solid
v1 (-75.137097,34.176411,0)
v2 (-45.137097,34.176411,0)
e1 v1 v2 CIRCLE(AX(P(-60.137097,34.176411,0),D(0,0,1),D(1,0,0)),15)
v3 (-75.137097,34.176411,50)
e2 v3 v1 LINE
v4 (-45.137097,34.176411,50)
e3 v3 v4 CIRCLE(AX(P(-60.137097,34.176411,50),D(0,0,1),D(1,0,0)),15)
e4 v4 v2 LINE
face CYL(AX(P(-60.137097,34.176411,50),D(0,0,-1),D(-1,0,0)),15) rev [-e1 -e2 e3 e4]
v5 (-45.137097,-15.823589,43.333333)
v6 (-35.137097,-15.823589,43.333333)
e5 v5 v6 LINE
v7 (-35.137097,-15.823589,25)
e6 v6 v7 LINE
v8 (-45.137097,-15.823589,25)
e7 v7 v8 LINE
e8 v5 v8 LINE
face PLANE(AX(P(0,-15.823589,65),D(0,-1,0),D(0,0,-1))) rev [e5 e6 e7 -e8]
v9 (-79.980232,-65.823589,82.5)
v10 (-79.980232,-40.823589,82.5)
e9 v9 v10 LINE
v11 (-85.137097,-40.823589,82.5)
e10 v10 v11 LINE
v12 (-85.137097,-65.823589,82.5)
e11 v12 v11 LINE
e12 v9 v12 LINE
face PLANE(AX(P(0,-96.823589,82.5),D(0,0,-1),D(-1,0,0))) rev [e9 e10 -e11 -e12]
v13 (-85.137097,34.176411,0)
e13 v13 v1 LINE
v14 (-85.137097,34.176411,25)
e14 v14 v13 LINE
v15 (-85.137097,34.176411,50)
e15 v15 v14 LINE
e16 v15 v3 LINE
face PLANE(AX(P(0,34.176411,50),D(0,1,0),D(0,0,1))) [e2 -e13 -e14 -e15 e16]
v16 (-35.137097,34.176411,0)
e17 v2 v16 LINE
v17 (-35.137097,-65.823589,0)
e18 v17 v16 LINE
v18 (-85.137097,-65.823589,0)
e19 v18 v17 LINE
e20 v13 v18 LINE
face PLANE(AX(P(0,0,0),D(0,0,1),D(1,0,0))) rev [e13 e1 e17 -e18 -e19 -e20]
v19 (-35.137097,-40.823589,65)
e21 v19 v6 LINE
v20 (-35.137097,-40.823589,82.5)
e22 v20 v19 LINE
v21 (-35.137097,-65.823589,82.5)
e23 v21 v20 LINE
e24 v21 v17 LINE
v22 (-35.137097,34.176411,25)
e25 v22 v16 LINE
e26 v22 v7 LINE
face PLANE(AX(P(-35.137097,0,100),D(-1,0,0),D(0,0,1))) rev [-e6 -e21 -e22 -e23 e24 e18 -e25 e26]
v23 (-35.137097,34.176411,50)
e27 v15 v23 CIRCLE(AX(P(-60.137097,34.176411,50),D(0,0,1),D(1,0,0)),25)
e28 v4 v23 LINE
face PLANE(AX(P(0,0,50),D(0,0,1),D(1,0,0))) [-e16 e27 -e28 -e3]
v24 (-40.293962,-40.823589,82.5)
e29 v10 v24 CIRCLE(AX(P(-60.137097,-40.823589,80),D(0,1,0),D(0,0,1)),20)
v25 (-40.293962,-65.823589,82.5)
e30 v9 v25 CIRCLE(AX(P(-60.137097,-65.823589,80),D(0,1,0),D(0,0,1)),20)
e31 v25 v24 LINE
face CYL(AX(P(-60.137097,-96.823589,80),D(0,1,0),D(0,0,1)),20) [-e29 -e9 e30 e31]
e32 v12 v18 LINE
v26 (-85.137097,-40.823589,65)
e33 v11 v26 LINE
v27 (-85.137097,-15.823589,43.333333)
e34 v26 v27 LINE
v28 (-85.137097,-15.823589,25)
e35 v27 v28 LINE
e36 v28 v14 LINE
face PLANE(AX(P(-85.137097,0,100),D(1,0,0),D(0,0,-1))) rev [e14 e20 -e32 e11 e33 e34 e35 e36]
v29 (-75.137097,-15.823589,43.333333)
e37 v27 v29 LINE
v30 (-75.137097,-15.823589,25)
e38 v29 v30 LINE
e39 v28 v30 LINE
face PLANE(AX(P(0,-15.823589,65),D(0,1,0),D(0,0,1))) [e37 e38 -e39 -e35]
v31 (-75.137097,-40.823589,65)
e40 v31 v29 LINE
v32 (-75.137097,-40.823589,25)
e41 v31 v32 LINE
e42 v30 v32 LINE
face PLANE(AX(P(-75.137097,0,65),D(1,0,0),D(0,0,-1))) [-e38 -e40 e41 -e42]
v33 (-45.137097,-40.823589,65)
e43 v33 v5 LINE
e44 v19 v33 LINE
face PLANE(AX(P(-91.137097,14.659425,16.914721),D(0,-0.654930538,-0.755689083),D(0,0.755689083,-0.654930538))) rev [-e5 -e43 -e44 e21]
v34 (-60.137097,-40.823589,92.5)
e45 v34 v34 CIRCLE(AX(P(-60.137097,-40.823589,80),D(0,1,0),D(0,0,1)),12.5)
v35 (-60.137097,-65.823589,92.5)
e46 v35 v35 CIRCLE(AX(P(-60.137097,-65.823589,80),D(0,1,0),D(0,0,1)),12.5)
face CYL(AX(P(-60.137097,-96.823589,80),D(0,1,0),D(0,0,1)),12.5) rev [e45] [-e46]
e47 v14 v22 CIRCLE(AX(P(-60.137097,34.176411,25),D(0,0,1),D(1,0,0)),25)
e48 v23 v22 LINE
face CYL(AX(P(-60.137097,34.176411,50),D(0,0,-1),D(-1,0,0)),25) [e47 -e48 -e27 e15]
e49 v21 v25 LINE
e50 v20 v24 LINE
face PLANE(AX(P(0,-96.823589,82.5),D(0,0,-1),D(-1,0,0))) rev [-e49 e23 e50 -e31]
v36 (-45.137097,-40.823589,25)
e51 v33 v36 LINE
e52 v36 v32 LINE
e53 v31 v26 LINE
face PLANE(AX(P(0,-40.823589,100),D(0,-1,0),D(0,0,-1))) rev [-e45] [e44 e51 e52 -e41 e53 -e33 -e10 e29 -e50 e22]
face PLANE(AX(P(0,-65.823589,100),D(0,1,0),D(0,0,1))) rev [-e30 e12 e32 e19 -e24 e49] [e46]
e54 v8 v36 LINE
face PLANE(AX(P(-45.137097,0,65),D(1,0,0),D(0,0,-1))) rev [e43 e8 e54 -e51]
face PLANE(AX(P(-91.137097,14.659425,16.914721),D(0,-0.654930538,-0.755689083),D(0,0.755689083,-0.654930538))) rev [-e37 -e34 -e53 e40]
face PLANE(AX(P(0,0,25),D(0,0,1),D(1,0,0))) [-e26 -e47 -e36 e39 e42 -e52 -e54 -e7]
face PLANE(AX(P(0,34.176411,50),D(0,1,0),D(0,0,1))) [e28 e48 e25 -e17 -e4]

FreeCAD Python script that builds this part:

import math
import FreeCAD as App
import Part
import Sketcher


def add_polygon(sketch, points):
    """Adds a closed chain of lines whose ends are joined by coincident constraints."""
    first, n = sketch.GeometryCount, len(points)
    for a, b in zip(points, points[1:] + points[:1]):
        sketch.addGeometry(Part.LineSegment(App.Vector(*a, 0), App.Vector(*b, 0)), False)
    for i in range(n):
        sketch.addConstraint(Sketcher.Constraint("Coincident", first + i, 2, first + (i + 1) % n, 1))

doc = App.newDocument("Part")
body = doc.addObject("PartDesign::Body", "Body")

# Sketch on XY plane
sketch1 = body.newObject("Sketcher::SketchObject", "Sketch")
sketch1.AttachmentSupport = (doc.getObject("XY_Plane"), [""])
sketch1.MapMode = "FlatFace"
add_polygon(sketch1, [(-85, -41), (-85, -66), (-35, -66), (-35, -41)])  # lines 0-3
sketch1.addConstraint([
    Sketcher.Constraint("Vertical", 0),
    Sketcher.Constraint("Horizontal", 1),
    Sketcher.Constraint("Vertical", 2),
    Sketcher.Constraint("Horizontal", 3),
    Sketcher.Constraint("DistanceX", 1, 1, 1, 2, 50.0),
    Sketcher.Constraint("DistanceY", 0, 2, 0, 1, 25.0),
    Sketcher.Constraint("DistanceY", 0, 2, -1, 1, 65.823589),
    Sketcher.Constraint("DistanceX", 0, 2, -1, 1, 85.137097),
])
pad1 = body.newObject("PartDesign::Pad", "Pad")
pad1.Profile = sketch1
pad1.Length = 100

# Sketch on XY plane
sketch2 = body.newObject("Sketcher::SketchObject", "Sketch001")
sketch2.AttachmentSupport = (doc.getObject("XY_Plane"), [""])
sketch2.MapMode = "FlatFace"
add_polygon(sketch2, [(-85, -16), (-85, -41), (-75, -41), (-75, -16)])  # lines 0-3
add_polygon(sketch2, [(-45, -16), (-45, -41), (-35, -41), (-35, -16)])  # lines 4-7
sketch2.addConstraint([
    Sketcher.Constraint("Vertical", 0),
    Sketcher.Constraint("Horizontal", 1),
    Sketcher.Constraint("Vertical", 2),
    Sketcher.Constraint("Horizontal", 3),
    Sketcher.Constraint("Vertical", 4),
    Sketcher.Constraint("Horizontal", 5),
    Sketcher.Constraint("Vertical", 6),
    Sketcher.Constraint("Horizontal", 7),
    Sketcher.Constraint("Horizontal", 1, 2, 4, 2),
    Sketcher.Constraint("Horizontal", 3, 2, 6, 2),
    Sketcher.Constraint("Equal", 3, 5),
    Sketcher.Constraint("DistanceX", 1, 1, 1, 2, 10.0),
    Sketcher.Constraint("DistanceY", 0, 2, 0, 1, 25.0),
    Sketcher.Constraint("DistanceX", 1, 2, 4, 2, 30.0),
    Sketcher.Constraint("DistanceY", 0, 2, -1, 1, 40.823589),
    Sketcher.Constraint("DistanceX", 0, 2, -1, 1, 85.137097),
])
pad2 = body.newObject("PartDesign::Pad", "Pad001")
pad2.Profile = sketch2
pad2.Length = 65

# Sketch on XY plane
sketch3 = body.newObject("Sketcher::SketchObject", "Sketch002")
sketch3.AttachmentSupport = (doc.getObject("XY_Plane"), [""])
sketch3.MapMode = "FlatFace"
sketch3.addGeometry([
    Part.LineSegment(App.Vector(-75, -16, 0), App.Vector(-75, -41, 0)),  # 0
    Part.LineSegment(App.Vector(-75, -41, 0), App.Vector(-45, -41, 0)),  # 1
    Part.LineSegment(App.Vector(-45, -41, 0), App.Vector(-45, -16, 0)),  # 2
    Part.LineSegment(App.Vector(-45, -16, 0), App.Vector(-35, -16, 0)),  # 3
    Part.LineSegment(App.Vector(-35, -16, 0), App.Vector(-35, 34, 0)),  # 4
    Part.ArcOfCircle(Part.Circle(App.Vector(-60, 34, 0), App.Vector(0, 0, 1), 25), math.radians(180), math.radians(360)),  # 5
    Part.LineSegment(App.Vector(-85, 34, 0), App.Vector(-85, -16, 0)),  # 6
    Part.LineSegment(App.Vector(-85, -16, 0), App.Vector(-75, -16, 0)),  # 7
], False)
sketch3.addConstraint([
    Sketcher.Constraint("Coincident", 0, 2, 1, 1),
    Sketcher.Constraint("Coincident", 1, 2, 2, 1),
    Sketcher.Constraint("Coincident", 2, 2, 3, 1),
    Sketcher.Constraint("Coincident", 3, 2, 4, 1),
    Sketcher.Constraint("Tangent", 4, 2, 5, 2),
    Sketcher.Constraint("Tangent", 5, 1, 6, 1),
    Sketcher.Constraint("Coincident", 6, 2, 7, 1),
    Sketcher.Constraint("Coincident", 7, 2, 0, 1),
    Sketcher.Constraint("Vertical", 0),
    Sketcher.Constraint("Horizontal", 1),
    Sketcher.Constraint("Vertical", 2),
    Sketcher.Constraint("Horizontal", 3),
    Sketcher.Constraint("Vertical", 4),
    Sketcher.Constraint("Vertical", 6),
    Sketcher.Constraint("Horizontal", 7),
    Sketcher.Constraint("Horizontal", 3, 2, 6, 2),
    Sketcher.Constraint("Equal", 3, 7),
    Sketcher.Constraint("Radius", 5, 25.0),
    Sketcher.Constraint("DistanceX", 1, 1, 1, 2, 30.0),
    Sketcher.Constraint("DistanceY", 0, 2, 0, 1, 25.0),
    Sketcher.Constraint("DistanceY", 4, 1, 4, 2, 50.0),
    Sketcher.Constraint("DistanceY", -1, 1, 5, 3, 34.176411),
    Sketcher.Constraint("DistanceX", 5, 3, -1, 1, 60.137097),
])
pad3 = body.newObject("PartDesign::Pad", "Pad002")
pad3.Profile = sketch3
pad3.Length = 25

# Sketch on XY plane
sketch4 = body.newObject("Sketcher::SketchObject", "Sketch003")
sketch4.AttachmentSupport = (doc.getObject("XY_Plane"), [""])
sketch4.MapMode = "FlatFace"
sketch4.addGeometry([
    Part.ArcOfCircle(Part.Circle(App.Vector(-60, 34, 0), App.Vector(0, 0, 1), 15), math.radians(180), math.radians(360)),
    Part.LineSegment(App.Vector(-75, 34, 0), App.Vector(-85, 34, 0)),
    Part.ArcOfCircle(Part.Circle(App.Vector(-60, 34, 0), App.Vector(0, 0, 1), 25), math.radians(180), math.radians(360)),
    Part.LineSegment(App.Vector(-35, 34, 0), App.Vector(-45, 34, 0)),
], False)
sketch4.addConstraint([
    Sketcher.Constraint("Coincident", 0, 1, 1, 1),
    Sketcher.Constraint("Coincident", 1, 2, 2, 1),
    Sketcher.Constraint("Coincident", 2, 2, 3, 1),
    Sketcher.Constraint("Coincident", 3, 2, 0, 2),
    Sketcher.Constraint("Horizontal", 1),
    Sketcher.Constraint("Horizontal", 3),
    Sketcher.Constraint("Coincident", 2, 3, 0, 3),
    Sketcher.Constraint("Horizontal", 2, 3, 0, 1),
    Sketcher.Constraint("Horizontal", 1, 2, 2, 2),
    Sketcher.Constraint("Radius", 0, 15.0),
    Sketcher.Constraint("Radius", 2, 25.0),
    Sketcher.Constraint("DistanceY", -1, 1, 0, 3, 34.176411),
    Sketcher.Constraint("DistanceX", 0, 3, -1, 1, 60.137097),
])
pad4 = body.newObject("PartDesign::Pad", "Pad003")
pad4.Profile = sketch4
pad4.Length = 50

# Sketch on XZ plane
sketch5 = body.newObject("Sketcher::SketchObject", "Sketch004")
sketch5.AttachmentSupport = (doc.getObject("XZ_Plane"), [""])
sketch5.MapMode = "FlatFace"
sketch5.AttachmentOffset = App.Placement(App.Vector(0, 0, 40.823589), App.Rotation())
sketch5.addGeometry([
    Part.Circle(App.Vector(-60, 80, 0), App.Vector(0, 0, 1), 12),  # 0
    Part.LineSegment(App.Vector(-35, 100, 0), App.Vector(-35, 82, 0)),  # 1
    Part.LineSegment(App.Vector(-35, 82, 0), App.Vector(-40, 82, 0)),  # 2
    Part.ArcOfCircle(Part.Circle(App.Vector(-60, 80, 0), App.Vector(0, 0, 1), 20), math.radians(7), math.radians(90)),  # 3
    Part.LineSegment(App.Vector(-60, 100, 0), App.Vector(-35, 100, 0)),  # 4
    Part.LineSegment(App.Vector(-85, 100, 0), App.Vector(-60, 100, 0)),  # 5
    Part.ArcOfCircle(Part.Circle(App.Vector(-60, 80, 0), App.Vector(0, 0, 1), 20), math.radians(90), math.radians(173)),  # 6
    Part.LineSegment(App.Vector(-80, 82, 0), App.Vector(-85, 82, 0)),  # 7
    Part.LineSegment(App.Vector(-85, 82, 0), App.Vector(-85, 100, 0)),  # 8
], False)
sketch5.addConstraint([
    Sketcher.Constraint("Coincident", 1, 2, 2, 1),
    Sketcher.Constraint("Coincident", 2, 2, 3, 1),
    Sketcher.Constraint("Tangent", 3, 2, 4, 1),
    Sketcher.Constraint("Coincident", 4, 2, 1, 1),
    Sketcher.Constraint("Tangent", 5, 2, 6, 1),
    Sketcher.Constraint("Coincident", 6, 2, 7, 1),
    Sketcher.Constraint("Coincident", 7, 2, 8, 1),
    Sketcher.Constraint("Coincident", 8, 2, 5, 1),
    Sketcher.Constraint("Vertical", 1),
    Sketcher.Constraint("Horizontal", 2),
    Sketcher.Constraint("Horizontal", 4),
    Sketcher.Constraint("Horizontal", 5),
    Sketcher.Constraint("Horizontal", 7),
    Sketcher.Constraint("Vertical", 8),
    Sketcher.Constraint("Coincident", 3, 3, 0, 3),
    Sketcher.Constraint("Coincident", 6, 3, 0, 3),
    Sketcher.Constraint("Equal", 3, 6),
    Sketcher.Constraint("Horizontal", 2, 2, 6, 2),
    Sketcher.Constraint("Equal", 4, 5),
    Sketcher.Constraint("Diameter", 0, 25.0),
    Sketcher.Constraint("Radius", 3, 20.0),
    Sketcher.Constraint("DistanceX", 4, 1, 4, 2, 25.0),
    Sketcher.Constraint("DistanceY", 1, 2, 1, 1, 17.5),
    Sketcher.Constraint("DistanceY", -1, 1, 0, 3, 80.0),
    Sketcher.Constraint("DistanceX", 2, 2, -1, 1, 40.293962),
])
pocket1 = body.newObject("PartDesign::Pocket", "Pocket")
pocket1.Profile = sketch5
pocket1.Length = 56
pocket1.Reversed = True

# Sketch on YZ plane
sketch6 = body.newObject("Sketcher::SketchObject", "Sketch005")
sketch6.AttachmentSupport = (doc.getObject("YZ_Plane"), [""])
sketch6.MapMode = "FlatFace"
sketch6.AttachmentOffset = App.Placement(App.Vector(0, 0, -35.137097), App.Rotation())
add_polygon(sketch6, [(-16, 65), (-41, 65), (-16, 43)])  # lines 0-2
sketch6.addConstraint([
    Sketcher.Constraint("Horizontal", 0),
    Sketcher.Constraint("Vertical", 2),
    Sketcher.Constraint("DistanceX", 0, 2, 0, 1, 25.0),
    Sketcher.Constraint("DistanceY", -1, 1, 0, 2, 65.0),
    Sketcher.Constraint("Distance", 1, 33.082389),
    Sketcher.Constraint("DistanceX", 0, 2, -1, 1, 40.823589),
])
pocket2 = body.newObject("PartDesign::Pocket", "Pocket001")
pocket2.Profile = sketch6
pocket2.Length = 56

doc.recompute()
